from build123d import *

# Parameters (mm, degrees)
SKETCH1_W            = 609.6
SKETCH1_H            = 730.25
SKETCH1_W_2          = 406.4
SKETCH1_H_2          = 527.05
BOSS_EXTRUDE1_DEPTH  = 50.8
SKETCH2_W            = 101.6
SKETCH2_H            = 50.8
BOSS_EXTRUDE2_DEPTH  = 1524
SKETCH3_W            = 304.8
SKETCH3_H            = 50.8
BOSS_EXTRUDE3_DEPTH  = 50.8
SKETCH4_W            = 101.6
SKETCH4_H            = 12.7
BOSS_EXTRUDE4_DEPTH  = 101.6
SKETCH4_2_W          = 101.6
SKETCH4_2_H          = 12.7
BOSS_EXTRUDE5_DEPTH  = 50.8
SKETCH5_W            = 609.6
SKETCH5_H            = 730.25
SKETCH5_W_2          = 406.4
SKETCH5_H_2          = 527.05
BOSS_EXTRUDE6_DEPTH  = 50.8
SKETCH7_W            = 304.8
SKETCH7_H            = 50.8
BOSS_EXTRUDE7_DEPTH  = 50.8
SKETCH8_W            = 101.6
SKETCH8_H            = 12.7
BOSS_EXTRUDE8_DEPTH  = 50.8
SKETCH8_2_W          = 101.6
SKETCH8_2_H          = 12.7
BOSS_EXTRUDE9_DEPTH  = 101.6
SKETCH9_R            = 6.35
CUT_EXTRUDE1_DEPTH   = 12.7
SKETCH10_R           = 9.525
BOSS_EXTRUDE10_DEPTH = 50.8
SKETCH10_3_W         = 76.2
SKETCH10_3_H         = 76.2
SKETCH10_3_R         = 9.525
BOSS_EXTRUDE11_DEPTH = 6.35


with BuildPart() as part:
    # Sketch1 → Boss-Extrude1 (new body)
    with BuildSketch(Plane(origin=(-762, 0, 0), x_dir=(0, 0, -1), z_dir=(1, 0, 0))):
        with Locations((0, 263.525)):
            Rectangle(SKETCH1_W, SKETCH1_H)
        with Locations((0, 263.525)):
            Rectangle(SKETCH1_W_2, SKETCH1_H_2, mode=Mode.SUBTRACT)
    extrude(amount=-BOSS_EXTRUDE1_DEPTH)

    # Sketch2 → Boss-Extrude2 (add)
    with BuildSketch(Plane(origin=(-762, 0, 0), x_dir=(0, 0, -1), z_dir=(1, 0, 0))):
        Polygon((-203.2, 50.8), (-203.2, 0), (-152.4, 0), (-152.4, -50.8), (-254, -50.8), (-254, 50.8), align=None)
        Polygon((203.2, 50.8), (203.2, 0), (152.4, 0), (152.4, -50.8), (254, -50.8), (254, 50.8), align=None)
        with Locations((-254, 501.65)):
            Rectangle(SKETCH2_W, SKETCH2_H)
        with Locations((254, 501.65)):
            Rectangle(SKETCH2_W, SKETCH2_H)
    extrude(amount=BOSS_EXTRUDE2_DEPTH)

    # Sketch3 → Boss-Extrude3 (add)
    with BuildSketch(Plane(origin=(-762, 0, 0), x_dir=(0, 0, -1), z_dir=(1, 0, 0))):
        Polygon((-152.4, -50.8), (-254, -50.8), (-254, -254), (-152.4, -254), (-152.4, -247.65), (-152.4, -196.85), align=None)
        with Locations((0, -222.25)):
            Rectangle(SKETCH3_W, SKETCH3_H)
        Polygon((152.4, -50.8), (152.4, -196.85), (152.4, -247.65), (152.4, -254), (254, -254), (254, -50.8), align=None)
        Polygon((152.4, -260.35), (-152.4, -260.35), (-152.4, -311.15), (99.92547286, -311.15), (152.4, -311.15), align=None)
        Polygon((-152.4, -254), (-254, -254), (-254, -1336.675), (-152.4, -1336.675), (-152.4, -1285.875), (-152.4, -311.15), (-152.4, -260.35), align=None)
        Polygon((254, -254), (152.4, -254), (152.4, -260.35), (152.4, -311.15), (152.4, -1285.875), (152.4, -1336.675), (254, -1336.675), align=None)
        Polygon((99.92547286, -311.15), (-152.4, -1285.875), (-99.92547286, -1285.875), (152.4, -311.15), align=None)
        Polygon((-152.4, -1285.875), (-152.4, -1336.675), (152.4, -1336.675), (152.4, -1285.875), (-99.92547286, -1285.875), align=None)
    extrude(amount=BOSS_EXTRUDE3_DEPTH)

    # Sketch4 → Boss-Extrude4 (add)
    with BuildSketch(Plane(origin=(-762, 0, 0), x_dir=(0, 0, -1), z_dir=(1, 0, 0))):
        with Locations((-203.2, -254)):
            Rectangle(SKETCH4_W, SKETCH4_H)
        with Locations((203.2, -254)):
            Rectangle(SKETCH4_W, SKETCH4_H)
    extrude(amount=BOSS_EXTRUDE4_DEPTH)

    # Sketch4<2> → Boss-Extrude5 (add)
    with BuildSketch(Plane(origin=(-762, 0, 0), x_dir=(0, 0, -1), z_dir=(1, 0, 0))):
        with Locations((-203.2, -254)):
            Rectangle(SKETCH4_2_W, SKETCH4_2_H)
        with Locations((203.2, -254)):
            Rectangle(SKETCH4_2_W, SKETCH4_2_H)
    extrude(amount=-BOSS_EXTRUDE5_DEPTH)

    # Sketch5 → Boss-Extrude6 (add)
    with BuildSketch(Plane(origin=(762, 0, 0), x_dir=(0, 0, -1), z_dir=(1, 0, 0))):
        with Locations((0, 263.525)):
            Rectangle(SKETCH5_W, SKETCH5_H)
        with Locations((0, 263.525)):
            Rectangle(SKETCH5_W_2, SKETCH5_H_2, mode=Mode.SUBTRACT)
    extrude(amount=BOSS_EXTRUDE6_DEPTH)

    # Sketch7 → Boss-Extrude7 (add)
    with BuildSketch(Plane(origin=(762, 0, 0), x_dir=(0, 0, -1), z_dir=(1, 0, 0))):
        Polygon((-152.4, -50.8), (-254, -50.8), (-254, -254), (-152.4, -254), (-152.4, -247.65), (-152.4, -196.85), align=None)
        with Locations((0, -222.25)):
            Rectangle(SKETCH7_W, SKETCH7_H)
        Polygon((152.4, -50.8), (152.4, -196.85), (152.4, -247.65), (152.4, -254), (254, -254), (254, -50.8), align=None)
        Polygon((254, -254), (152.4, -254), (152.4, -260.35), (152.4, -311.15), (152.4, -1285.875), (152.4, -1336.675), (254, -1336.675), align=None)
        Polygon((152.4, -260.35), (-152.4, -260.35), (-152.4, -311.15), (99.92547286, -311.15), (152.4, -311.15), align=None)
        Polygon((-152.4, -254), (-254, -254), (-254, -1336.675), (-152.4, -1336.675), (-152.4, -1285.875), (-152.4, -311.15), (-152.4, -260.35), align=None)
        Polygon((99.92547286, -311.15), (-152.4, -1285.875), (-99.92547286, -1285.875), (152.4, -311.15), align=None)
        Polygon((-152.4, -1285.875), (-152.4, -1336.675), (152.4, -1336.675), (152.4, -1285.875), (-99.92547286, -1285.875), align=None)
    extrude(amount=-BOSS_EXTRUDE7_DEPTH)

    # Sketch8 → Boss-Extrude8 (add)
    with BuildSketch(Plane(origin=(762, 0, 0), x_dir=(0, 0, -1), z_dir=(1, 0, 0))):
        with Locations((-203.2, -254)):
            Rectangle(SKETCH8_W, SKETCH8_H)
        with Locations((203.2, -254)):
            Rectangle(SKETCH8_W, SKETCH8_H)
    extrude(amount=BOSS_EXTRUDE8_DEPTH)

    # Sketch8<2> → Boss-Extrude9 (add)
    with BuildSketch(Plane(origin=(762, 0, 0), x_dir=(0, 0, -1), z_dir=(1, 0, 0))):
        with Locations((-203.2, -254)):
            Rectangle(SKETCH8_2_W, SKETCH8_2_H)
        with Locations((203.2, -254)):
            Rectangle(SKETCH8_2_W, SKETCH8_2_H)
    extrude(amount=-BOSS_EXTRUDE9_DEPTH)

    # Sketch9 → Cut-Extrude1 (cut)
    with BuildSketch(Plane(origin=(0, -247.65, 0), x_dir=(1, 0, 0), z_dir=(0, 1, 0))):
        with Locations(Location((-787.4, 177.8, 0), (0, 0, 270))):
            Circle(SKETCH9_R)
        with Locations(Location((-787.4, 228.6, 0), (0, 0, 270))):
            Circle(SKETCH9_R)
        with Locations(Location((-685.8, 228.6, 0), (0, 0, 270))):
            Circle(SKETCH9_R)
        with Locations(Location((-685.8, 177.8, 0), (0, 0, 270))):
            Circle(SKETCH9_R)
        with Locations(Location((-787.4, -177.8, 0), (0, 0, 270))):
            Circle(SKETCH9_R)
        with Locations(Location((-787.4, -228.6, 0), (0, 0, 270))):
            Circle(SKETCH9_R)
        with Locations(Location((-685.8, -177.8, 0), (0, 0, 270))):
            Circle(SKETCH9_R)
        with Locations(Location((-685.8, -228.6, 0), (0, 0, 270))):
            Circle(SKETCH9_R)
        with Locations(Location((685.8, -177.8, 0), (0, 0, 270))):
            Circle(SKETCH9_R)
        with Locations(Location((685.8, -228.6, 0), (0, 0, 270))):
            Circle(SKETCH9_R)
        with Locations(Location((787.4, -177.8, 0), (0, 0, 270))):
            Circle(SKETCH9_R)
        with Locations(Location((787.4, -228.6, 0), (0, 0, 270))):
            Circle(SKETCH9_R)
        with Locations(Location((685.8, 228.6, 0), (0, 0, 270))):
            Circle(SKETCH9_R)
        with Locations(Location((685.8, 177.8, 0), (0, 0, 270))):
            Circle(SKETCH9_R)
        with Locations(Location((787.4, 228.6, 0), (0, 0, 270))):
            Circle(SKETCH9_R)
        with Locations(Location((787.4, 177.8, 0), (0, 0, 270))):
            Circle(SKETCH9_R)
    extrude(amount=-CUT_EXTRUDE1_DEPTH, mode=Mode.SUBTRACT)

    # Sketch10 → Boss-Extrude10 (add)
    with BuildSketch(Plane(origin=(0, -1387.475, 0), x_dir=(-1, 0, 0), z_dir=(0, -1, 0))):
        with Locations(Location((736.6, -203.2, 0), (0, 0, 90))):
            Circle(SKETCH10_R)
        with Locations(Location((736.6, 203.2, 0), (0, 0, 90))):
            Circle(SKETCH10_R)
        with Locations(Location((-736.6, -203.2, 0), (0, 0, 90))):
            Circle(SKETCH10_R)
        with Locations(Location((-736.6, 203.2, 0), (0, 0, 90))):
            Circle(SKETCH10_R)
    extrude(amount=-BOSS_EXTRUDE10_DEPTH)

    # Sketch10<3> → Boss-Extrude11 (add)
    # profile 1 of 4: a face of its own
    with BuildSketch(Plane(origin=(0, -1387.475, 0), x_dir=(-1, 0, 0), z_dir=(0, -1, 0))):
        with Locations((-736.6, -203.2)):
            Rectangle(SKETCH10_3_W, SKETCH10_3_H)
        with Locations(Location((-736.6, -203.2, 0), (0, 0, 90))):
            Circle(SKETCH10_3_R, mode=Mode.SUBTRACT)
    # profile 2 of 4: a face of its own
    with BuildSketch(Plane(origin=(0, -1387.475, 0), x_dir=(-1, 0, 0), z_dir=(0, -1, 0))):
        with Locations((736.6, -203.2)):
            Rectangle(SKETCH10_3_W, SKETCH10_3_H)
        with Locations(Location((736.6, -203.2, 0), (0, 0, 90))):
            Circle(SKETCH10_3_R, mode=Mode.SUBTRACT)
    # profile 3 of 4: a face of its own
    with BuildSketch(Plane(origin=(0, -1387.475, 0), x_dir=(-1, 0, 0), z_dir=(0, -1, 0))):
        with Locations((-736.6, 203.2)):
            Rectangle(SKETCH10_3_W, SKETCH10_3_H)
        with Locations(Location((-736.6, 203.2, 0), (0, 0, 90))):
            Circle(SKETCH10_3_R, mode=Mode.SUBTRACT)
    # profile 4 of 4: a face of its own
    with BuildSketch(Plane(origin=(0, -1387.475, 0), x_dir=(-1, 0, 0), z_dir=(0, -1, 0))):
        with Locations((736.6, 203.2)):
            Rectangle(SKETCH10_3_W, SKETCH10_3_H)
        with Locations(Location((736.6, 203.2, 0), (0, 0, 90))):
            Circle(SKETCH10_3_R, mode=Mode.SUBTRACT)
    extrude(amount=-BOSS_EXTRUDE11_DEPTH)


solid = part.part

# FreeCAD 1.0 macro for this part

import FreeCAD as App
import Part
import Sketcher
Q = App.Units.Quantity


def add_polygon(sketch, points):
    """Adds a closed chain of lines whose ends are joined by coincident constraints."""
    first, n = sketch.GeometryCount, len(points)
    for a, b in zip(points, points[1:] + points[:1]):
        sketch.addGeometry(Part.LineSegment(App.Vector(*a, 0), App.Vector(*b, 0)), False)
    for i in range(n):
        sketch.addConstraint(Sketcher.Constraint("Coincident", first + i, 2, first + (i + 1) % n, 1))

doc = App.newDocument("Part")
body = doc.addObject("PartDesign::Body", "Body")

# Sketch on YZ plane
sketch1 = body.newObject("Sketcher::SketchObject", "Sketch")
sketch1.AttachmentSupport = (doc.getObject("YZ_Plane"), [""])
sketch1.MapMode = "FlatFace"
sketch1.AttachmentOffset = App.Placement(App.Vector(0, 0, -30 * 25.4), App.Rotation())
add_polygon(sketch1, [(629, 305), (-102, 305), (-102, -305), (629, -305)])  # lines 0-3
add_polygon(sketch1, [(0, -203), (0, 203), (527, 203), (527, -203)])  # lines 4-7
sketch1.addConstraint(Sketcher.Constraint("Horizontal", 0))
sketch1.addConstraint(Sketcher.Constraint("Vertical", 1))
sketch1.addConstraint(Sketcher.Constraint("Horizontal", 2))
sketch1.addConstraint(Sketcher.Constraint("Vertical", 3))
sketch1.addConstraint(Sketcher.Constraint("Vertical", 4))
sketch1.addConstraint(Sketcher.Constraint("Horizontal", 5))
sketch1.addConstraint(Sketcher.Constraint("Vertical", 6))
sketch1.addConstraint(Sketcher.Constraint("Horizontal", 7))
sketch1.addConstraint(Sketcher.Constraint("Symmetric", 4, 2, 7, 2, -1, 1))
sketch1.addConstraint(Sketcher.Constraint("DistanceY", 1, 2, 1, 1, Q("24 in")))
sketch1.addConstraint(Sketcher.Constraint("DistanceY", 4, 1, 4, 2, Q("16 in")))
sketch1.addConstraint(Sketcher.Constraint("DistanceX", 0, 2, -1, 1, Q("4 in")))
sketch1.addConstraint(Sketcher.Constraint("DistanceY", -1, 1, 0, 2, Q("12 in")))
sketch1.addConstraint(Sketcher.Constraint("DistanceX", 5, 2, 3, 2, Q("4 in")))
sketch1.addConstraint(Sketcher.Constraint("DistanceX", 0, 2, 0, 1, Q("28.75 in")))
pad1 = body.newObject("PartDesign::Pad", "Pad")
pad1.Profile = sketch1
pad1.Length = Q("2 in")
pad1.Reversed = True

# Sketch on YZ plane
sketch2 = body.newObject("Sketcher::SketchObject", "Sketch001")
sketch2.AttachmentSupport = (doc.getObject("YZ_Plane"), [""])
sketch2.MapMode = "FlatFace"
sketch2.AttachmentOffset = App.Placement(App.Vector(0, 0, -30 * 25.4), App.Rotation())
add_polygon(sketch2, [(0, 203), (51, 203), (51, 254), (-51, 254), (-51, 152), (0, 152)])  # lines 0-5
add_polygon(sketch2, [(51, -203), (0, -203), (0, -152), (-51, -152), (-51, -254), (51, -254)])  # lines 6-11
add_polygon(sketch2, [(527, 305), (476, 305), (476, 203), (527, 203)])  # lines 12-15
add_polygon(sketch2, [(527, -203), (476, -203), (476, -305), (527, -305)])  # lines 16-19
sketch2.addConstraint(Sketcher.Constraint("Horizontal", 0))
sketch2.addConstraint(Sketcher.Constraint("Vertical", 1))
sketch2.addConstraint(Sketcher.Constraint("Horizontal", 2))
sketch2.addConstraint(Sketcher.Constraint("Vertical", 3))
sketch2.addConstraint(Sketcher.Constraint("Horizontal", 4))
sketch2.addConstraint(Sketcher.Constraint("Vertical", 5))
sketch2.addConstraint(Sketcher.Constraint("Horizontal", 6))
sketch2.addConstraint(Sketcher.Constraint("Vertical", 7))
sketch2.addConstraint(Sketcher.Constraint("Horizontal", 8))
sketch2.addConstraint(Sketcher.Constraint("Vertical", 9))
sketch2.addConstraint(Sketcher.Constraint("Horizontal", 10))
sketch2.addConstraint(Sketcher.Constraint("Vertical", 11))
sketch2.addConstraint(Sketcher.Constraint("Horizontal", 12))
sketch2.addConstraint(Sketcher.Constraint("Vertical", 13))
sketch2.addConstraint(Sketcher.Constraint("Horizontal", 14))
sketch2.addConstraint(Sketcher.Constraint("Vertical", 15))
sketch2.addConstraint(Sketcher.Constraint("Horizontal", 16))
sketch2.addConstraint(Sketcher.Constraint("Vertical", 17))
sketch2.addConstraint(Sketcher.Constraint("Horizontal", 18))
sketch2.addConstraint(Sketcher.Constraint("Vertical", 19))
sketch2.addConstraint(Sketcher.Constraint("Symmetric", 5, 2, 6, 2, -1, 1))
sketch2.addConstraint(Sketcher.Constraint("Symmetric", 1, 2, 9, 2, -1, 1))
sketch2.addConstraint(Sketcher.Constraint("Symmetric", 4, 2, 7, 2, -1))
sketch2.addConstraint(Sketcher.Constraint("Symmetric", 13, 2, 16, 2, -1))
sketch2.addConstraint(Sketcher.Constraint("Symmetric", 15, 2, 18, 2, -1))
sketch2.addConstraint(Sketcher.Constraint("Horizontal", 5, 2, 13, 2))
sketch2.addConstraint(Sketcher.Constraint("Vertical", 3, 2, 8, 2))
sketch2.addConstraint(Sketcher.Constraint("Vertical", 1, 2, 10, 2))
sketch2.addConstraint(Sketcher.Constraint("Equal", 8, 12))
sketch2.addConstraint(Sketcher.Constraint("Equal", 18, 1))
sketch2.addConstraint(Sketcher.Constraint("Equal", 10, 3))
sketch2.addConstraint(Sketcher.Constraint("Equal", 9, 13))
sketch2.addConstraint(Sketcher.Constraint("DistanceX", 0, 1, 0, 2, Q("2 in")))
sketch2.addConstraint(Sketcher.Constraint("DistanceY", -1, 1, 0, 2, Q("8 in")))
sketch2.addConstraint(Sketcher.Constraint("DistanceX", -1, 1, 12, 2, Q("18.75 in")))
pad2 = body.newObject("PartDesign::Pad", "Pad001")
pad2.Profile = sketch2
pad2.Length = Q("60 in")

# Sketch on YZ plane
sketch3 = body.newObject("Sketcher::SketchObject", "Sketch002")
sketch3.AttachmentSupport = (doc.getObject("YZ_Plane"), [""])
sketch3.MapMode = "FlatFace"
sketch3.AttachmentOffset = App.Placement(App.Vector(0, 0, -30 * 25.4), App.Rotation())
add_polygon(sketch3, [(-1337, 254), (-1337, -254), (-51, -254), (-51, -152), (-197, -152), (-197, 152), (-51, 152), (-51, 254)])  # lines 0-7
add_polygon(sketch3, [(-311, -152), (-1286, -152), (-1286, 100)])  # lines 8-10
add_polygon(sketch3, [(-311, -100), (-1286, 152), (-311, 152)])  # lines 11-13
add_polygon(sketch3, [(-260, -152), (-260, 152), (-248, 152), (-248, -152)])  # lines 14-17
sketch3.addConstraint(Sketcher.Constraint("Vertical", 0))
sketch3.addConstraint(Sketcher.Constraint("Horizontal", 1))
sketch3.addConstraint(Sketcher.Constraint("Vertical", 2))
sketch3.addConstraint(Sketcher.Constraint("Horizontal", 3))
sketch3.addConstraint(Sketcher.Constraint("Vertical", 4))
sketch3.addConstraint(Sketcher.Constraint("Horizontal", 5))
sketch3.addConstraint(Sketcher.Constraint("Vertical", 6))
sketch3.addConstraint(Sketcher.Constraint("Horizontal", 7))
sketch3.addConstraint(Sketcher.Constraint("Horizontal", 8))
sketch3.addConstraint(Sketcher.Constraint("Vertical", 9))
sketch3.addConstraint(Sketcher.Constraint("Horizontal", 12))
sketch3.addConstraint(Sketcher.Constraint("Vertical", 13))
sketch3.addConstraint(Sketcher.Constraint("Vertical", 14))
sketch3.addConstraint(Sketcher.Constraint("Horizontal", 15))
sketch3.addConstraint(Sketcher.Constraint("Vertical", 16))
sketch3.addConstraint(Sketcher.Constraint("Horizontal", 17))
sketch3.addConstraint(Sketcher.Constraint("Symmetric", 2, 2, 5, 2, -1))
sketch3.addConstraint(Sketcher.Constraint("Symmetric", 8, 2, 11, 2, -1))
sketch3.addConstraint(Sketcher.Constraint("Parallel", 10, 11))
sketch3.addConstraint(Sketcher.Constraint("Horizontal", 3, 2, 8, 2))
sketch3.addConstraint(Sketcher.Constraint("Horizontal", 12, 2, 14, 2))
sketch3.addConstraint(Sketcher.Constraint("Horizontal", 10, 2, 16, 2))
sketch3.addConstraint(Sketcher.Constraint("Vertical", 10, 2, 12, 2))
sketch3.addConstraint(Sketcher.Constraint("Equal", 2, 6))
sketch3.addConstraint(Sketcher.Constraint("DistanceY", 0, 2, 0, 1, Q("20 in")))
sketch3.addConstraint(Sketcher.Constraint("DistanceY", 2, 1, 2, 2, Q("4 in")))
sketch3.addConstraint(Sketcher.Constraint("DistanceX", 15, 1, 15, 2, Q("0.5 in")))
sketch3.addConstraint(Sketcher.Constraint("DistanceX", 1, 2, -1, 1, Q("2 in")))
sketch3.addConstraint(Sketcher.Constraint("DistanceX", 0, 2, 8, 2, Q("2 in")))
sketch3.addConstraint(Sketcher.Constraint("DistanceX", 12, 2, 14, 2, Q("2 in")))
sketch3.addConstraint(Sketcher.Constraint("DistanceX", 15, 2, 4, 2, Q("2 in")))
sketch3.addConstraint(Sketcher.Constraint("DistanceX", 3, 2, 3, 1, Q("5.75 in")))
sketch3.addConstraint(Sketcher.Constraint("DistanceX", 1, 1, 1, 2, Q("50.625 in")))
sketch3.addConstraint(Sketcher.Constraint("Distance", 10, Q("1006.854989 mm")))
pad3 = body.newObject("PartDesign::Pad", "Pad002")
pad3.Profile = sketch3
pad3.Length = Q("2 in")

# Sketch on YZ plane
sketch4 = body.newObject("Sketcher::SketchObject", "Sketch003")
sketch4.AttachmentSupport = (doc.getObject("YZ_Plane"), [""])
sketch4.MapMode = "FlatFace"
sketch4.AttachmentOffset = App.Placement(App.Vector(0, 0, -30 * 25.4), App.Rotation())
add_polygon(sketch4, [(-248, 254), (-260, 254), (-260, 152), (-248, 152)])  # lines 0-3
add_polygon(sketch4, [(-248, -152), (-260, -152), (-260, -254), (-248, -254)])  # lines 4-7
sketch4.addConstraint(Sketcher.Constraint("Horizontal", 0))
sketch4.addConstraint(Sketcher.Constraint("Vertical", 1))
sketch4.addConstraint(Sketcher.Constraint("Horizontal", 2))
sketch4.addConstraint(Sketcher.Constraint("Vertical", 3))
sketch4.addConstraint(Sketcher.Constraint("Horizontal", 4))
sketch4.addConstraint(Sketcher.Constraint("Vertical", 5))
sketch4.addConstraint(Sketcher.Constraint("Horizontal", 6))
sketch4.addConstraint(Sketcher.Constraint("Vertical", 7))
sketch4.addConstraint(Sketcher.Constraint("Symmetric", 1, 2, 4, 2, -1))
sketch4.addConstraint(Sketcher.Constraint("Symmetric", 3, 2, 6, 2, -1))
sketch4.addConstraint(Sketcher.Constraint("DistanceY", 1, 2, 1, 1, Q("4 in")))
sketch4.addConstraint(Sketcher.Constraint("DistanceX", 0, 2, 0, 1, Q("0.5 in")))
sketch4.addConstraint(Sketcher.Constraint("DistanceY", -1, 1, 0, 2, Q("10 in")))
sketch4.addConstraint(Sketcher.Constraint("DistanceX", 0, 2, -1, 1, Q("10.25 in")))
pad4 = body.newObject("PartDesign::Pad", "Pad003")
pad4.Profile = sketch4
pad4.Length = Q("4 in")

# Sketch on YZ plane
sketch5 = body.newObject("Sketcher::SketchObject", "Sketch004")
sketch5.AttachmentSupport = (doc.getObject("YZ_Plane"), [""])
sketch5.MapMode = "FlatFace"
sketch5.AttachmentOffset = App.Placement(App.Vector(0, 0, -30 * 25.4), App.Rotation())
add_polygon(sketch5, [(-248, 254), (-260, 254), (-260, 152), (-248, 152)])  # lines 0-3
add_polygon(sketch5, [(-248, -152), (-260, -152), (-260, -254), (-248, -254)])  # lines 4-7
sketch5.addConstraint(Sketcher.Constraint("Horizontal", 0))
sketch5.addConstraint(Sketcher.Constraint("Vertical", 1))
sketch5.addConstraint(Sketcher.Constraint("Horizontal", 2))
sketch5.addConstraint(Sketcher.Constraint("Vertical", 3))
sketch5.addConstraint(Sketcher.Constraint("Horizontal", 4))
sketch5.addConstraint(Sketcher.Constraint("Vertical", 5))
sketch5.addConstraint(Sketcher.Constraint("Horizontal", 6))
sketch5.addConstraint(Sketcher.Constraint("Vertical", 7))
sketch5.addConstraint(Sketcher.Constraint("Symmetric", 1, 2, 4, 2, -1))
sketch5.addConstraint(Sketcher.Constraint("Symmetric", 3, 2, 6, 2, -1))
sketch5.addConstraint(Sketcher.Constraint("DistanceY", 1, 2, 1, 1, Q("4 in")))
sketch5.addConstraint(Sketcher.Constraint("DistanceX", 0, 2, 0, 1, Q("0.5 in")))
sketch5.addConstraint(Sketcher.Constraint("DistanceY", -1, 1, 0, 2, Q("10 in")))
sketch5.addConstraint(Sketcher.Constraint("DistanceX", 0, 2, -1, 1, Q("10.25 in")))
pad5 = body.newObject("PartDesign::Pad", "Pad004")
pad5.Profile = sketch5
pad5.Length = Q("2 in")
pad5.Reversed = True

# Sketch on YZ plane
sketch6 = body.newObject("Sketcher::SketchObject", "Sketch005")
sketch6.AttachmentSupport = (doc.getObject("YZ_Plane"), [""])
sketch6.MapMode = "FlatFace"
sketch6.AttachmentOffset = App.Placement(App.Vector(0, 0, 30 * 25.4), App.Rotation())
add_polygon(sketch6, [(629, 305), (-102, 305), (-102, -305), (629, -305)])  # lines 0-3
add_polygon(sketch6, [(0, -203), (0, 203), (527, 203), (527, -203)])  # lines 4-7
sketch6.addConstraint(Sketcher.Constraint("Horizontal", 0))
sketch6.addConstraint(Sketcher.Constraint("Vertical", 1))
sketch6.addConstraint(Sketcher.Constraint("Horizontal", 2))
sketch6.addConstraint(Sketcher.Constraint("Vertical", 3))
sketch6.addConstraint(Sketcher.Constraint("Vertical", 4))
sketch6.addConstraint(Sketcher.Constraint("Horizontal", 5))
sketch6.addConstraint(Sketcher.Constraint("Vertical", 6))
sketch6.addConstraint(Sketcher.Constraint("Horizontal", 7))
sketch6.addConstraint(Sketcher.Constraint("Symmetric", 4, 2, 7, 2, -1, 1))
sketch6.addConstraint(Sketcher.Constraint("DistanceY", 1, 2, 1, 1, Q("24 in")))
sketch6.addConstraint(Sketcher.Constraint("DistanceY", 4, 1, 4, 2, Q("16 in")))
sketch6.addConstraint(Sketcher.Constraint("DistanceX", 0, 2, -1, 1, Q("4 in")))
sketch6.addConstraint(Sketcher.Constraint("DistanceY", -1, 1, 0, 2, Q("12 in")))
sketch6.addConstraint(Sketcher.Constraint("DistanceX", 5, 2, 3, 2, Q("4 in")))
sketch6.addConstraint(Sketcher.Constraint("DistanceX", 0, 2, 0, 1, Q("28.75 in")))
pad6 = body.newObject("PartDesign::Pad", "Pad005")
pad6.Profile = sketch6
pad6.Length = Q("2 in")

# Sketch on YZ plane
sketch7 = body.newObject("Sketcher::SketchObject", "Sketch006")
sketch7.AttachmentSupport = (doc.getObject("YZ_Plane"), [""])
sketch7.MapMode = "FlatFace"
sketch7.AttachmentOffset = App.Placement(App.Vector(0, 0, 30 * 25.4), App.Rotation())
add_polygon(sketch7, [(-1337, 254), (-1337, -254), (-51, -254), (-51, -152), (-197, -152), (-197, 152), (-51, 152), (-51, 254)])  # lines 0-7
add_polygon(sketch7, [(-311, -152), (-1286, -152), (-1286, 100)])  # lines 8-10
add_polygon(sketch7, [(-311, -100), (-1286, 152), (-311, 152)])  # lines 11-13
add_polygon(sketch7, [(-248, 152), (-248, -152), (-260, -152), (-260, 152)])  # lines 14-17
sketch7.addConstraint(Sketcher.Constraint("Vertical", 0))
sketch7.addConstraint(Sketcher.Constraint("Horizontal", 1))
sketch7.addConstraint(Sketcher.Constraint("Vertical", 2))
sketch7.addConstraint(Sketcher.Constraint("Horizontal", 3))
sketch7.addConstraint(Sketcher.Constraint("Vertical", 4))
sketch7.addConstraint(Sketcher.Constraint("Horizontal", 5))
sketch7.addConstraint(Sketcher.Constraint("Vertical", 6))
sketch7.addConstraint(Sketcher.Constraint("Horizontal", 7))
sketch7.addConstraint(Sketcher.Constraint("Horizontal", 8))
sketch7.addConstraint(Sketcher.Constraint("Vertical", 9))
sketch7.addConstraint(Sketcher.Constraint("Horizontal", 12))
sketch7.addConstraint(Sketcher.Constraint("Vertical", 13))
sketch7.addConstraint(Sketcher.Constraint("Vertical", 14))
sketch7.addConstraint(Sketcher.Constraint("Horizontal", 15))
sketch7.addConstraint(Sketcher.Constraint("Vertical", 16))
sketch7.addConstraint(Sketcher.Constraint("Horizontal", 17))
sketch7.addConstraint(Sketcher.Constraint("Symmetric", 2, 2, 5, 2, -1))
sketch7.addConstraint(Sketcher.Constraint("Symmetric", 8, 2, 11, 2, -1))
sketch7.addConstraint(Sketcher.Constraint("Parallel", 10, 11))
sketch7.addConstraint(Sketcher.Constraint("Horizontal", 3, 2, 8, 2))
sketch7.addConstraint(Sketcher.Constraint("Horizontal", 10, 2, 14, 2))
sketch7.addConstraint(Sketcher.Constraint("Horizontal", 12, 2, 16, 2))
sketch7.addConstraint(Sketcher.Constraint("Vertical", 10, 2, 12, 2))
sketch7.addConstraint(Sketcher.Constraint("Equal", 2, 6))
sketch7.addConstraint(Sketcher.Constraint("DistanceY", 0, 2, 0, 1, Q("20 in")))
sketch7.addConstraint(Sketcher.Constraint("DistanceY", 2, 1, 2, 2, Q("4 in")))
sketch7.addConstraint(Sketcher.Constraint("DistanceX", 15, 2, 15, 1, Q("0.5 in")))
sketch7.addConstraint(Sketcher.Constraint("DistanceX", 1, 2, -1, 1, Q("2 in")))
sketch7.addConstraint(Sketcher.Constraint("DistanceX", 0, 2, 8, 2, Q("2 in")))
sketch7.addConstraint(Sketcher.Constraint("DistanceX", 14, 2, 3, 2, Q("2 in")))
sketch7.addConstraint(Sketcher.Constraint("DistanceX", 10, 2, 15, 2, Q("2 in")))
sketch7.addConstraint(Sketcher.Constraint("DistanceX", 3, 2, 3, 1, Q("5.75 in")))
sketch7.addConstraint(Sketcher.Constraint("DistanceX", 1, 1, 1, 2, Q("50.625 in")))
sketch7.addConstraint(Sketcher.Constraint("Distance", 10, Q("1006.854989 mm")))
pad7 = body.newObject("PartDesign::Pad", "Pad006")
pad7.Profile = sketch7
pad7.Length = Q("2 in")
pad7.Reversed = True

# Sketch on YZ plane
sketch8 = body.newObject("Sketcher::SketchObject", "Sketch007")
sketch8.AttachmentSupport = (doc.getObject("YZ_Plane"), [""])
sketch8.MapMode = "FlatFace"
sketch8.AttachmentOffset = App.Placement(App.Vector(0, 0, 30 * 25.4), App.Rotation())
add_polygon(sketch8, [(-248, 254), (-260, 254), (-260, 152), (-248, 152)])  # lines 0-3
add_polygon(sketch8, [(-248, -152), (-260, -152), (-260, -254), (-248, -254)])  # lines 4-7
sketch8.addConstraint(Sketcher.Constraint("Horizontal", 0))
sketch8.addConstraint(Sketcher.Constraint("Vertical", 1))
sketch8.addConstraint(Sketcher.Constraint("Horizontal", 2))
sketch8.addConstraint(Sketcher.Constraint("Vertical", 3))
sketch8.addConstraint(Sketcher.Constraint("Horizontal", 4))
sketch8.addConstraint(Sketcher.Constraint("Vertical", 5))
sketch8.addConstraint(Sketcher.Constraint("Horizontal", 6))
sketch8.addConstraint(Sketcher.Constraint("Vertical", 7))
sketch8.addConstraint(Sketcher.Constraint("Symmetric", 1, 2, 4, 2, -1))
sketch8.addConstraint(Sketcher.Constraint("Symmetric", 3, 2, 6, 2, -1))
sketch8.addConstraint(Sketcher.Constraint("DistanceY", 1, 2, 1, 1, Q("4 in")))
sketch8.addConstraint(Sketcher.Constraint("DistanceX", 0, 2, 0, 1, Q("0.5 in")))
sketch8.addConstraint(Sketcher.Constraint("DistanceY", -1, 1, 0, 2, Q("10 in")))
sketch8.addConstraint(Sketcher.Constraint("DistanceX", 0, 2, -1, 1, Q("10.25 in")))
pad8 = body.newObject("PartDesign::Pad", "Pad007")
pad8.Profile = sketch8
pad8.Length = Q("2 in")

# Sketch on YZ plane
sketch9 = body.newObject("Sketcher::SketchObject", "Sketch008")
sketch9.AttachmentSupport = (doc.getObject("YZ_Plane"), [""])
sketch9.MapMode = "FlatFace"
sketch9.AttachmentOffset = App.Placement(App.Vector(0, 0, 30 * 25.4), App.Rotation())
add_polygon(sketch9, [(-248, 254), (-260, 254), (-260, 152), (-248, 152)])  # lines 0-3
add_polygon(sketch9, [(-248, -152), (-260, -152), (-260, -254), (-248, -254)])  # lines 4-7
sketch9.addConstraint(Sketcher.Constraint("Horizontal", 0))
sketch9.addConstraint(Sketcher.Constraint("Vertical", 1))
sketch9.addConstraint(Sketcher.Constraint("Horizontal", 2))
sketch9.addConstraint(Sketcher.Constraint("Vertical", 3))
sketch9.addConstraint(Sketcher.Constraint("Horizontal", 4))
sketch9.addConstraint(Sketcher.Constraint("Vertical", 5))
sketch9.addConstraint(Sketcher.Constraint("Horizontal", 6))
sketch9.addConstraint(Sketcher.Constraint("Vertical", 7))
sketch9.addConstraint(Sketcher.Constraint("Symmetric", 1, 2, 4, 2, -1))
sketch9.addConstraint(Sketcher.Constraint("Symmetric", 3, 2, 6, 2, -1))
sketch9.addConstraint(Sketcher.Constraint("DistanceY", 1, 2, 1, 1, Q("4 in")))
sketch9.addConstraint(Sketcher.Constraint("DistanceX", 0, 2, 0, 1, Q("0.5 in")))
sketch9.addConstraint(Sketcher.Constraint("DistanceY", -1, 1, 0, 2, Q("10 in")))
sketch9.addConstraint(Sketcher.Constraint("DistanceX", 0, 2, -1, 1, Q("10.25 in")))
pad9 = body.newObject("PartDesign::Pad", "Pad008")
pad9.Profile = sketch9
pad9.Length = Q("4 in")
pad9.Reversed = True

# Sketch on XZ plane
sketch10 = body.newObject("Sketcher::SketchObject", "Sketch009")
sketch10.AttachmentSupport = (doc.getObject("XZ_Plane"), [""])
sketch10.MapMode = "FlatFace"
sketch10.AttachmentOffset = App.Placement(App.Vector(0, 0, 9.75 * 25.4), App.Rotation())
sketch10.addGeometry(Part.Circle(App.Vector(-787, -178, 0), App.Vector(0, 0, 1), 6), False)
sketch10.addGeometry(Part.Circle(App.Vector(-787, -229, 0), App.Vector(0, 0, 1), 6), False)
sketch10.addGeometry(Part.Circle(App.Vector(-686, -229, 0), App.Vector(0, 0, 1), 6), False)
sketch10.addGeometry(Part.Circle(App.Vector(-686, -178, 0), App.Vector(0, 0, 1), 6), False)
sketch10.addGeometry(Part.Circle(App.Vector(-787, 178, 0), App.Vector(0, 0, 1), 6), False)
sketch10.addGeometry(Part.Circle(App.Vector(-787, 229, 0), App.Vector(0, 0, 1), 6), False)
sketch10.addGeometry(Part.Circle(App.Vector(-686, 178, 0), App.Vector(0, 0, 1), 6), False)
sketch10.addGeometry(Part.Circle(App.Vector(-686, 229, 0), App.Vector(0, 0, 1), 6), False)
sketch10.addGeometry(Part.Circle(App.Vector(686, 178, 0), App.Vector(0, 0, 1), 6), False)
sketch10.addGeometry(Part.Circle(App.Vector(686, 229, 0), App.Vector(0, 0, 1), 6), False)
sketch10.addGeometry(Part.Circle(App.Vector(787, 178, 0), App.Vector(0, 0, 1), 6), False)
sketch10.addGeometry(Part.Circle(App.Vector(787, 229, 0), App.Vector(0, 0, 1), 6), False)
sketch10.addGeometry(Part.Circle(App.Vector(686, -229, 0), App.Vector(0, 0, 1), 6), False)
sketch10.addGeometry(Part.Circle(App.Vector(686, -178, 0), App.Vector(0, 0, 1), 6), False)
sketch10.addGeometry(Part.Circle(App.Vector(787, -229, 0), App.Vector(0, 0, 1), 6), False)
sketch10.addGeometry(Part.Circle(App.Vector(787, -178, 0), App.Vector(0, 0, 1), 6), False)
sketch10.addConstraint(Sketcher.Constraint("Equal", 0, 1))
sketch10.addConstraint(Sketcher.Constraint("Equal", 1, 2))
sketch10.addConstraint(Sketcher.Constraint("Equal", 2, 3))
sketch10.addConstraint(Sketcher.Constraint("Equal", 3, 4))
sketch10.addConstraint(Sketcher.Constraint("Equal", 4, 5))
sketch10.addConstraint(Sketcher.Constraint("Equal", 5, 6))
sketch10.addConstraint(Sketcher.Constraint("Equal", 6, 7))
sketch10.addConstraint(Sketcher.Constraint("Equal", 7, 8))
sketch10.addConstraint(Sketcher.Constraint("Equal", 8, 9))
sketch10.addConstraint(Sketcher.Constraint("Equal", 9, 10))
sketch10.addConstraint(Sketcher.Constraint("Equal", 10, 11))
sketch10.addConstraint(Sketcher.Constraint("Equal", 11, 12))
sketch10.addConstraint(Sketcher.Constraint("Equal", 12, 13))
sketch10.addConstraint(Sketcher.Constraint("Equal", 13, 14))
sketch10.addConstraint(Sketcher.Constraint("Equal", 14, 15))
sketch10.addConstraint(Sketcher.Constraint("Symmetric", 3, 3, 8, 3, -1, 1))
sketch10.addConstraint(Sketcher.Constraint("Symmetric", 2, 3, 9, 3, -1, 1))
sketch10.addConstraint(Sketcher.Constraint("Symmetric", 0, 3, 10, 3, -1, 1))
sketch10.addConstraint(Sketcher.Constraint("Symmetric", 1, 3, 11, 3, -1, 1))
sketch10.addConstraint(Sketcher.Constraint("Symmetric", 7, 3, 12, 3, -1, 1))
sketch10.addConstraint(Sketcher.Constraint("Symmetric", 6, 3, 13, 3, -1, 1))
sketch10.addConstraint(Sketcher.Constraint("Symmetric", 5, 3, 14, 3, -1, 1))
sketch10.addConstraint(Sketcher.Constraint("Symmetric", 4, 3, 15, 3, -1, 1))
sketch10.addConstraint(Sketcher.Constraint("Symmetric", 6, 3, 8, 3, -2))
sketch10.addConstraint(Sketcher.Constraint("Symmetric", 7, 3, 9, 3, -2))
sketch10.addConstraint(Sketcher.Constraint("Symmetric", 4, 3, 10, 3, -2))
sketch10.addConstraint(Sketcher.Constraint("Symmetric", 5, 3, 11, 3, -2))
sketch10.addConstraint(Sketcher.Constraint("Horizontal", 1, 3, 2, 3))
sketch10.addConstraint(Sketcher.Constraint("Horizontal", 0, 3, 3, 3))
sketch10.addConstraint(Sketcher.Constraint("Vertical", 0, 3, 1, 3))
sketch10.addConstraint(Sketcher.Constraint("Vertical", 2, 3, 3, 3))
sketch10.addConstraint(Sketcher.Constraint("Diameter", 0, Q("0.5 in")))
sketch10.addConstraint(Sketcher.Constraint("DistanceX", 0, 3, -1, 1, Q("31 in")))
sketch10.addConstraint(Sketcher.Constraint("DistanceY", 0, 3, -1, 1, Q("7 in")))
sketch10.addConstraint(Sketcher.Constraint("DistanceY", 1, 3, -1, 1, Q("9 in")))
sketch10.addConstraint(Sketcher.Constraint("DistanceX", 2, 3, -1, 1, Q("27 in")))
pocket1 = body.newObject("PartDesign::Pocket", "Pocket")
pocket1.Profile = sketch10
pocket1.Length = Q("0.5 in")
pocket1.Reversed = True

# Sketch on XZ plane
sketch11 = body.newObject("Sketcher::SketchObject", "Sketch010")
sketch11.AttachmentSupport = (doc.getObject("XZ_Plane"), [""])
sketch11.MapMode = "FlatFace"
sketch11.AttachmentOffset = App.Placement(App.Vector(0, 0, 54.625 * 25.4), App.Rotation())
sketch11.addGeometry(Part.Circle(App.Vector(-737, 203, 0), App.Vector(0, 0, 1), 10), False)
sketch11.addGeometry(Part.Circle(App.Vector(-737, -203, 0), App.Vector(0, 0, 1), 10), False)
sketch11.addGeometry(Part.Circle(App.Vector(737, 203, 0), App.Vector(0, 0, 1), 10), False)
sketch11.addGeometry(Part.Circle(App.Vector(737, -203, 0), App.Vector(0, 0, 1), 10), False)
sketch11.addConstraint(Sketcher.Constraint("Equal", 0, 1))
sketch11.addConstraint(Sketcher.Constraint("Equal", 1, 2))
sketch11.addConstraint(Sketcher.Constraint("Equal", 2, 3))
sketch11.addConstraint(Sketcher.Constraint("Symmetric", 1, 3, 2, 3, -1, 1))
sketch11.addConstraint(Sketcher.Constraint("Symmetric", 0, 3, 3, 3, -1, 1))
sketch11.addConstraint(Sketcher.Constraint("Symmetric", 0, 3, 2, 3, -2))
sketch11.addConstraint(Sketcher.Constraint("Diameter", 0, Q("0.75 in")))
sketch11.addConstraint(Sketcher.Constraint("DistanceX", 0, 3, -1, 1, Q("29 in")))
sketch11.addConstraint(Sketcher.Constraint("DistanceY", -1, 1, 0, 3, Q("8 in")))
pad10 = body.newObject("PartDesign::Pad", "Pad009")
pad10.Profile = sketch11
pad10.Length = Q("2 in")
pad10.Reversed = True

# Sketch on XZ plane
sketch12 = body.newObject("Sketcher::SketchObject", "Sketch011")
sketch12.AttachmentSupport = (doc.getObject("XZ_Plane"), [""])
sketch12.MapMode = "FlatFace"
sketch12.AttachmentOffset = App.Placement(App.Vector(0, 0, 54.625 * 25.4), App.Rotation())
add_polygon(sketch12, [(775, 165), (775, 241), (698, 241), (698, 165)])  # lines 0-3
sketch12.addGeometry(Part.Circle(App.Vector(737, 203, 0), App.Vector(0, 0, 1), 10), False)  # 4
add_polygon(sketch12, [(-698, 165), (-698, 241), (-775, 241), (-775, 165)])  # lines 5-8
sketch12.addGeometry(Part.Circle(App.Vector(-737, 203, 0), App.Vector(0, 0, 1), 10), False)  # 9
add_polygon(sketch12, [(775, -241), (775, -165), (698, -165), (698, -241)])  # lines 10-13
sketch12.addGeometry(Part.Circle(App.Vector(737, -203, 0), App.Vector(0, 0, 1), 10), False)  # 14
add_polygon(sketch12, [(-698, -241), (-698, -165), (-775, -165), (-775, -241)])  # lines 15-18
sketch12.addGeometry(Part.Circle(App.Vector(-737, -203, 0), App.Vector(0, 0, 1), 10), False)  # 19
sketch12.addConstraint(Sketcher.Constraint("Vertical", 0))
sketch12.addConstraint(Sketcher.Constraint("Horizontal", 1))
sketch12.addConstraint(Sketcher.Constraint("Vertical", 2))
sketch12.addConstraint(Sketcher.Constraint("Horizontal", 3))
sketch12.addConstraint(Sketcher.Constraint("Vertical", 5))
sketch12.addConstraint(Sketcher.Constraint("Horizontal", 6))
sketch12.addConstraint(Sketcher.Constraint("Vertical", 7))
sketch12.addConstraint(Sketcher.Constraint("Horizontal", 8))
sketch12.addConstraint(Sketcher.Constraint("Vertical", 10))
sketch12.addConstraint(Sketcher.Constraint("Horizontal", 11))
sketch12.addConstraint(Sketcher.Constraint("Vertical", 12))
sketch12.addConstraint(Sketcher.Constraint("Horizontal", 13))
sketch12.addConstraint(Sketcher.Constraint("Vertical", 15))
sketch12.addConstraint(Sketcher.Constraint("Horizontal", 16))
sketch12.addConstraint(Sketcher.Constraint("Vertical", 17))
sketch12.addConstraint(Sketcher.Constraint("Horizontal", 18))
sketch12.addConstraint(Sketcher.Constraint("Equal", 4, 9))
sketch12.addConstraint(Sketcher.Constraint("Equal", 9, 14))
sketch12.addConstraint(Sketcher.Constraint("Equal", 14, 19))
sketch12.addConstraint(Sketcher.Constraint("Symmetric", 9, 3, 14, 3, -1, 1))
sketch12.addConstraint(Sketcher.Constraint("Symmetric", 4, 3, 19, 3, -1, 1))
sketch12.addConstraint(Sketcher.Constraint("Symmetric", 7, 2, 10, 2, -1, 1))
sketch12.addConstraint(Sketcher.Constraint("Symmetric", 5, 2, 12, 2, -1, 1))
sketch12.addConstraint(Sketcher.Constraint("Symmetric", 2, 2, 15, 2, -1, 1))
sketch12.addConstraint(Sketcher.Constraint("Symmetric", 0, 2, 17, 2, -1, 1))
sketch12.addConstraint(Sketcher.Constraint("Symmetric", 4, 3, 9, 3, -2))
sketch12.addConstraint(Sketcher.Constraint("Symmetric", 1, 2, 5, 2, -2))
sketch12.addConstraint(Sketcher.Constraint("Symmetric", 3, 2, 7, 2, -2))
sketch12.addConstraint(Sketcher.Constraint("Equal", 18, 0))
sketch12.addConstraint(Sketcher.Constraint("Diameter", 4, Q("0.75 in")))
sketch12.addConstraint(Sketcher.Constraint("DistanceX", 1, 2, 1, 1, Q("3 in")))
sketch12.addConstraint(Sketcher.Constraint("DistanceX", -1, 1, 4, 3, Q("29 in")))
sketch12.addConstraint(Sketcher.Constraint("DistanceY", -1, 1, 4, 3, Q("8 in")))
sketch12.addConstraint(Sketcher.Constraint("DistanceX", 5, 2, 1, 2, Q("55 in")))
sketch12.addConstraint(Sketcher.Constraint("DistanceY", 10, 2, 3, 2, Q("13 in")))
pad11 = body.newObject("PartDesign::Pad", "Pad010")
pad11.Profile = sketch12
pad11.Length = Q("0.25 in")
pad11.Reversed = True

doc.recompute()
